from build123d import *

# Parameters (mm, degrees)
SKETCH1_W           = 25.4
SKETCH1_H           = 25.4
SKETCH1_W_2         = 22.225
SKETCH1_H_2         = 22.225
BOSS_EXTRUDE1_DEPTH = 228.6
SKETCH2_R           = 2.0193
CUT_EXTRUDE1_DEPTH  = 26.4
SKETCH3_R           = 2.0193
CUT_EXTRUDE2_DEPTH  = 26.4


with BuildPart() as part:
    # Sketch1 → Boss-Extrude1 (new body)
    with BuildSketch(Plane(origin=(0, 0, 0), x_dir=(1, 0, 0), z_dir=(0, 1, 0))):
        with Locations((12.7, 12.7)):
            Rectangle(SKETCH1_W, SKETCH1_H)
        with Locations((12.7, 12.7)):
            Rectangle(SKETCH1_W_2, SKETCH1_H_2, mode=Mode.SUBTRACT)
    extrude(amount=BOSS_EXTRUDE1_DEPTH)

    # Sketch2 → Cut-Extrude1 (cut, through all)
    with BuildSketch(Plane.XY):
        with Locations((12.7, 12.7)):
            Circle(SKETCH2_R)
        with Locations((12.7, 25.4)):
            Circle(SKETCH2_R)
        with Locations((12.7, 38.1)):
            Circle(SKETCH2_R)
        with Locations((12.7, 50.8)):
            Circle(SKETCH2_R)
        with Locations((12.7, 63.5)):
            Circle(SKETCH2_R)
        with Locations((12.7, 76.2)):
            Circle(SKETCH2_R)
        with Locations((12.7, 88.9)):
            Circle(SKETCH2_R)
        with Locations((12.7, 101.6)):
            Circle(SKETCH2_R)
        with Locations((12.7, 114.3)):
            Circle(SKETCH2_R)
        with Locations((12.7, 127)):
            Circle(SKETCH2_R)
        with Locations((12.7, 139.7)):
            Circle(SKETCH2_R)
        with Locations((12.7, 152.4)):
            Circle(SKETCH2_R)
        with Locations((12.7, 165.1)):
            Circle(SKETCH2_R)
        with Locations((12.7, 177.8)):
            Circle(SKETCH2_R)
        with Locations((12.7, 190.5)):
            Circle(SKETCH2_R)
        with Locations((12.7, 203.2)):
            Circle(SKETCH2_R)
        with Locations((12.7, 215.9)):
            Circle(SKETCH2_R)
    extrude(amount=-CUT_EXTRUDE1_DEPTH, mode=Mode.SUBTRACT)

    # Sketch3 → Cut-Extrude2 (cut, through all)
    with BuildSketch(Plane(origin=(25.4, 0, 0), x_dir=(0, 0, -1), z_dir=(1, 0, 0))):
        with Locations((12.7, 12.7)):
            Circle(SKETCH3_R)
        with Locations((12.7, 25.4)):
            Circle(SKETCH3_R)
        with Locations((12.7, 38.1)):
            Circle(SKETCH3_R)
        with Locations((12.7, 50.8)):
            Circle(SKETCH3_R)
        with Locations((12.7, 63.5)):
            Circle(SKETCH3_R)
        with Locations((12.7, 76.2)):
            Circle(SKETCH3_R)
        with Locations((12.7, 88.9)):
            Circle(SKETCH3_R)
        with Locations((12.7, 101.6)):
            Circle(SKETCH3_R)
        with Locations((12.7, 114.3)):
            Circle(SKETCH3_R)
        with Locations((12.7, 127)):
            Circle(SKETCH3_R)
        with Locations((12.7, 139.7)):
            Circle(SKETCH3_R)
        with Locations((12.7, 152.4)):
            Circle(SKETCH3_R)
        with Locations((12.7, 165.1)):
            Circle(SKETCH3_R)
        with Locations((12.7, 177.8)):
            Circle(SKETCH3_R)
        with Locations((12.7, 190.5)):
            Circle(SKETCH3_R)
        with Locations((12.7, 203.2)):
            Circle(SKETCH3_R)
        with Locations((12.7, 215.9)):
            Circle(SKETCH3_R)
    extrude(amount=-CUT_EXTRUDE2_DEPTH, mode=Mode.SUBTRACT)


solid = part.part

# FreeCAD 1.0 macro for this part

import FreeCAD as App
import Part
import Sketcher
from FreeCAD import Vector
Q = App.Units.Quantity

doc = App.newDocument("Part")
body = doc.addObject("PartDesign::Body", "Body")

# Sketch on XZ plane
sketch1 = body.newObject("Sketcher::SketchObject", "Sketch")
sketch1.AttachmentSupport = (doc.getObject("XZ_Plane"), [""])
sketch1.MapMode = "FlatFace"
sketch1.addGeometry(Part.LineSegment(Vector(0, -25, 0), Vector(0, 0, 0)), False)
sketch1.addGeometry(Part.LineSegment(Vector(0, 0, 0), Vector(25, 0, 0)), False)
sketch1.addGeometry(Part.LineSegment(Vector(25, 0, 0), Vector(25, -25, 0)), False)
sketch1.addGeometry(Part.LineSegment(Vector(25, -25, 0), Vector(0, -25, 0)), False)
sketch1.addGeometry(Part.LineSegment(Vector(24, -2, 0), Vector(2, -2, 0)), False)
sketch1.addGeometry(Part.LineSegment(Vector(2, -2, 0), Vector(2, -24, 0)), False)
sketch1.addGeometry(Part.LineSegment(Vector(2, -24, 0), Vector(24, -24, 0)), False)
sketch1.addGeometry(Part.LineSegment(Vector(24, -24, 0), Vector(24, -2, 0)), False)
sketch1.addConstraint(Sketcher.Constraint("Coincident", 0, 2, 1, 1))
sketch1.addConstraint(Sketcher.Constraint("Coincident", 1, 2, 2, 1))
sketch1.addConstraint(Sketcher.Constraint("Coincident", 2, 2, 3, 1))
sketch1.addConstraint(Sketcher.Constraint("Coincident", 3, 2, 0, 1))
sketch1.addConstraint(Sketcher.Constraint("Coincident", 4, 2, 5, 1))
sketch1.addConstraint(Sketcher.Constraint("Coincident", 5, 2, 6, 1))
sketch1.addConstraint(Sketcher.Constraint("Coincident", 6, 2, 7, 1))
sketch1.addConstraint(Sketcher.Constraint("Coincident", 7, 2, 4, 1))
sketch1.addConstraint(Sketcher.Constraint("Vertical", 0))
sketch1.addConstraint(Sketcher.Constraint("Horizontal", 1))
sketch1.addConstraint(Sketcher.Constraint("Vertical", 2))
sketch1.addConstraint(Sketcher.Constraint("Horizontal", 3))
sketch1.addConstraint(Sketcher.Constraint("Horizontal", 4))
sketch1.addConstraint(Sketcher.Constraint("Vertical", 5))
sketch1.addConstraint(Sketcher.Constraint("Horizontal", 6))
sketch1.addConstraint(Sketcher.Constraint("Vertical", 7))
sketch1.addConstraint(Sketcher.Constraint("Coincident", 0, 2, -1, 1))
sketch1.addConstraint(Sketcher.Constraint("Equal", 3, 0))
sketch1.addConstraint(Sketcher.Constraint("Equal", 6, 5))
sketch1.addConstraint(Sketcher.Constraint("DistanceX", 1, 1, 1, 2, Q("1 in")))
sketch1.addConstraint(Sketcher.Constraint("DistanceX", 4, 2, 4, 1, Q("0.875 in")))
sketch1.addConstraint(Sketcher.Constraint("DistanceX", -1, 1, 4, 2, Q("0.0625 in")))
sketch1.addConstraint(Sketcher.Constraint("DistanceY", 4, 2, -1, 1, Q("0.0625 in")))
pad1 = body.newObject("PartDesign::Pad", "Pad")
pad1.Profile = sketch1
pad1.Length = Q("9 in")
pad1.Reversed = True

# Sketch on XY plane
sketch2 = body.newObject("Sketcher::SketchObject", "Sketch001")
sketch2.AttachmentSupport = (doc.getObject("XY_Plane"), [""])
sketch2.MapMode = "FlatFace"
sketch2.addGeometry(Part.Circle(Vector(12.7, 12.7, 0), Vector(0, 0, 1), 2), False)
sketch2.addGeometry(Part.Circle(Vector(12.7, 25.4, 0), Vector(0, 0, 1), 2), False)
sketch2.addGeometry(Part.Circle(Vector(12.7, 38.1, 0), Vector(0, 0, 1), 2), False)
sketch2.addGeometry(Part.Circle(Vector(12.7, 50.8, 0), Vector(0, 0, 1), 2), False)
sketch2.addGeometry(Part.Circle(Vector(12.7, 63.5, 0), Vector(0, 0, 1), 2), False)
sketch2.addGeometry(Part.Circle(Vector(12.7, 76.2, 0), Vector(0, 0, 1), 2), False)
sketch2.addGeometry(Part.Circle(Vector(12.7, 88.9, 0), Vector(0, 0, 1), 2), False)
sketch2.addGeometry(Part.Circle(Vector(12.7, 101.6, 0), Vector(0, 0, 1), 2), False)
sketch2.addGeometry(Part.Circle(Vector(12.7, 114.3, 0), Vector(0, 0, 1), 2), False)
sketch2.addGeometry(Part.Circle(Vector(12.7, 127, 0), Vector(0, 0, 1), 2), False)
sketch2.addGeometry(Part.Circle(Vector(12.7, 139.7, 0), Vector(0, 0, 1), 2), False)
sketch2.addGeometry(Part.Circle(Vector(12.7, 152.4, 0), Vector(0, 0, 1), 2), False)
sketch2.addGeometry(Part.Circle(Vector(12.7, 165.1, 0), Vector(0, 0, 1), 2), False)
sketch2.addGeometry(Part.Circle(Vector(12.7, 177.8, 0), Vector(0, 0, 1), 2), False)
sketch2.addGeometry(Part.Circle(Vector(12.7, 190.5, 0), Vector(0, 0, 1), 2), False)
sketch2.addGeometry(Part.Circle(Vector(12.7, 203.2, 0), Vector(0, 0, 1), 2), False)
sketch2.addGeometry(Part.Circle(Vector(12.7, 215.9, 0), Vector(0, 0, 1), 2), False)
sketch2.addConstraint(Sketcher.Constraint("Equal", 0, 1))
sketch2.addConstraint(Sketcher.Constraint("Equal", 1, 2))
sketch2.addConstraint(Sketcher.Constraint("Equal", 2, 3))
sketch2.addConstraint(Sketcher.Constraint("Equal", 3, 4))
sketch2.addConstraint(Sketcher.Constraint("Equal", 4, 5))
sketch2.addConstraint(Sketcher.Constraint("Equal", 5, 6))
sketch2.addConstraint(Sketcher.Constraint("Equal", 6, 7))
sketch2.addConstraint(Sketcher.Constraint("Equal", 7, 8))
sketch2.addConstraint(Sketcher.Constraint("Equal", 8, 9))
sketch2.addConstraint(Sketcher.Constraint("Equal", 9, 10))
sketch2.addConstraint(Sketcher.Constraint("Equal", 10, 11))
sketch2.addConstraint(Sketcher.Constraint("Equal", 11, 12))
sketch2.addConstraint(Sketcher.Constraint("Equal", 12, 13))
sketch2.addConstraint(Sketcher.Constraint("Equal", 13, 14))
sketch2.addConstraint(Sketcher.Constraint("Equal", 14, 15))
sketch2.addConstraint(Sketcher.Constraint("Equal", 15, 16))
sketch2.addConstraint(Sketcher.Constraint("Vertical", 0, 3, 1, 3))
sketch2.addConstraint(Sketcher.Constraint("Vertical", 1, 3, 2, 3))
sketch2.addConstraint(Sketcher.Constraint("Vertical", 2, 3, 3, 3))
sketch2.addConstraint(Sketcher.Constraint("Vertical", 3, 3, 4, 3))
sketch2.addConstraint(Sketcher.Constraint("Vertical", 4, 3, 5, 3))
sketch2.addConstraint(Sketcher.Constraint("Vertical", 5, 3, 6, 3))
sketch2.addConstraint(Sketcher.Constraint("Vertical", 6, 3, 7, 3))
sketch2.addConstraint(Sketcher.Constraint("Vertical", 7, 3, 8, 3))
sketch2.addConstraint(Sketcher.Constraint("Vertical", 8, 3, 9, 3))
sketch2.addConstraint(Sketcher.Constraint("Vertical", 9, 3, 10, 3))
sketch2.addConstraint(Sketcher.Constraint("Vertical", 10, 3, 11, 3))
sketch2.addConstraint(Sketcher.Constraint("Vertical", 11, 3, 12, 3))
sketch2.addConstraint(Sketcher.Constraint("Vertical", 12, 3, 13, 3))
sketch2.addConstraint(Sketcher.Constraint("Vertical", 13, 3, 14, 3))
sketch2.addConstraint(Sketcher.Constraint("Vertical", 14, 3, 15, 3))
sketch2.addConstraint(Sketcher.Constraint("Vertical", 15, 3, 16, 3))
sketch2.addConstraint(Sketcher.Constraint("Diameter", 0, Q("0.159 in")))
sketch2.addConstraint(Sketcher.Constraint("DistanceY", -1, 1, 1, 3, Q("1 in")))
sketch2.addConstraint(Sketcher.Constraint("DistanceY", -1, 1, 3, 3, Q("2 in")))
sketch2.addConstraint(Sketcher.Constraint("DistanceY", -1, 1, 5, 3, Q("3 in")))
sketch2.addConstraint(Sketcher.Constraint("DistanceY", -1, 1, 7, 3, Q("4 in")))
sketch2.addConstraint(Sketcher.Constraint("DistanceY", -1, 1, 9, 3, Q("5 in")))
sketch2.addConstraint(Sketcher.Constraint("DistanceY", -1, 1, 11, 3, Q("6 in")))
sketch2.addConstraint(Sketcher.Constraint("DistanceY", -1, 1, 13, 3, Q("7 in")))
sketch2.addConstraint(Sketcher.Constraint("DistanceY", -1, 1, 15, 3, Q("8 in")))
sketch2.addConstraint(Sketcher.Constraint("DistanceY", 0, 3, 2, 3, Q("1 in")))
sketch2.addConstraint(Sketcher.Constraint("DistanceY", 2, 3, 4, 3, Q("1 in")))
sketch2.addConstraint(Sketcher.Constraint("DistanceY", 4, 3, 6, 3, Q("1 in")))
sketch2.addConstraint(Sketcher.Constraint("DistanceY", 6, 3, 8, 3, Q("1 in")))
sketch2.addConstraint(Sketcher.Constraint("DistanceY", 8, 3, 10, 3, Q("1 in")))
sketch2.addConstraint(Sketcher.Constraint("DistanceY", 10, 3, 12, 3, Q("1 in")))
sketch2.addConstraint(Sketcher.Constraint("DistanceY", 12, 3, 14, 3, Q("1 in")))
sketch2.addConstraint(Sketcher.Constraint("DistanceY", 14, 3, 16, 3, Q("1 in")))
sketch2.addConstraint(Sketcher.Constraint("DistanceX", -1, 1, 0, 3, Q("0.5 in")))
sketch2.addConstraint(Sketcher.Constraint("DistanceY", -1, 1, 0, 3, Q("0.5 in")))
pocket1 = body.newObject("PartDesign::Pocket", "Pocket")
pocket1.Profile = sketch2
pocket1.Type = "ThroughAll"

# Sketch on YZ plane
sketch3 = body.newObject("Sketcher::SketchObject", "Sketch002")
sketch3.AttachmentSupport = (doc.getObject("YZ_Plane"), [""])
sketch3.MapMode = "FlatFace"
sketch3.AttachmentOffset = App.Placement(Vector(0, 0, 1 * 25.4), App.Rotation())
sketch3.addGeometry(Part.Circle(Vector(12.7, -12.7, 0), Vector(0, 0, 1), 2), False)
sketch3.addGeometry(Part.Circle(Vector(25.4, -12.7, 0), Vector(0, 0, 1), 2), False)
sketch3.addGeometry(Part.Circle(Vector(38.1, -12.7, 0), Vector(0, 0, 1), 2), False)
sketch3.addGeometry(Part.Circle(Vector(50.8, -12.7, 0), Vector(0, 0, 1), 2), False)
sketch3.addGeometry(Part.Circle(Vector(63.5, -12.7, 0), Vector(0, 0, 1), 2), False)
sketch3.addGeometry(Part.Circle(Vector(76.2, -12.7, 0), Vector(0, 0, 1), 2), False)
sketch3.addGeometry(Part.Circle(Vector(88.9, -12.7, 0), Vector(0, 0, 1), 2), False)
sketch3.addGeometry(Part.Circle(Vector(101.6, -12.7, 0), Vector(0, 0, 1), 2), False)
sketch3.addGeometry(Part.Circle(Vector(114.3, -12.7, 0), Vector(0, 0, 1), 2), False)
sketch3.addGeometry(Part.Circle(Vector(127, -12.7, 0), Vector(0, 0, 1), 2), False)
sketch3.addGeometry(Part.Circle(Vector(139.7, -12.7, 0), Vector(0, 0, 1), 2), False)
sketch3.addGeometry(Part.Circle(Vector(152.4, -12.7, 0), Vector(0, 0, 1), 2), False)
sketch3.addGeometry(Part.Circle(Vector(165.1, -12.7, 0), Vector(0, 0, 1), 2), False)
sketch3.addGeometry(Part.Circle(Vector(177.8, -12.7, 0), Vector(0, 0, 1), 2), False)
sketch3.addGeometry(Part.Circle(Vector(190.5, -12.7, 0), Vector(0, 0, 1), 2), False)
sketch3.addGeometry(Part.Circle(Vector(203.2, -12.7, 0), Vector(0, 0, 1), 2), False)
sketch3.addGeometry(Part.Circle(Vector(215.9, -12.7, 0), Vector(0, 0, 1), 2), False)
sketch3.addConstraint(Sketcher.Constraint("Equal", 0, 1))
sketch3.addConstraint(Sketcher.Constraint("Equal", 1, 2))
sketch3.addConstraint(Sketcher.Constraint("Equal", 2, 3))
sketch3.addConstraint(Sketcher.Constraint("Equal", 3, 4))
sketch3.addConstraint(Sketcher.Constraint("Equal", 4, 5))
sketch3.addConstraint(Sketcher.Constraint("Equal", 5, 6))
sketch3.addConstraint(Sketcher.Constraint("Equal", 6, 7))
sketch3.addConstraint(Sketcher.Constraint("Equal", 7, 8))
sketch3.addConstraint(Sketcher.Constraint("Equal", 8, 9))
sketch3.addConstraint(Sketcher.Constraint("Equal", 9, 10))
sketch3.addConstraint(Sketcher.Constraint("Equal", 10, 11))
sketch3.addConstraint(Sketcher.Constraint("Equal", 11, 12))
sketch3.addConstraint(Sketcher.Constraint("Equal", 12, 13))
sketch3.addConstraint(Sketcher.Constraint("Equal", 13, 14))
sketch3.addConstraint(Sketcher.Constraint("Equal", 14, 15))
sketch3.addConstraint(Sketcher.Constraint("Equal", 15, 16))
sketch3.addConstraint(Sketcher.Constraint("Horizontal", 0, 3, 1, 3))
sketch3.addConstraint(Sketcher.Constraint("Horizontal", 1, 3, 2, 3))
sketch3.addConstraint(Sketcher.Constraint("Horizontal", 2, 3, 3, 3))
sketch3.addConstraint(Sketcher.Constraint("Horizontal", 3, 3, 4, 3))
sketch3.addConstraint(Sketcher.Constraint("Horizontal", 4, 3, 5, 3))
sketch3.addConstraint(Sketcher.Constraint("Horizontal", 5, 3, 6, 3))
sketch3.addConstraint(Sketcher.Constraint("Horizontal", 6, 3, 7, 3))
sketch3.addConstraint(Sketcher.Constraint("Horizontal", 7, 3, 8, 3))
sketch3.addConstraint(Sketcher.Constraint("Horizontal", 8, 3, 9, 3))
sketch3.addConstraint(Sketcher.Constraint("Horizontal", 9, 3, 10, 3))
sketch3.addConstraint(Sketcher.Constraint("Horizontal", 10, 3, 11, 3))
sketch3.addConstraint(Sketcher.Constraint("Horizontal", 11, 3, 12, 3))
sketch3.addConstraint(Sketcher.Constraint("Horizontal", 12, 3, 13, 3))
sketch3.addConstraint(Sketcher.Constraint("Horizontal", 13, 3, 14, 3))
sketch3.addConstraint(Sketcher.Constraint("Horizontal", 14, 3, 15, 3))
sketch3.addConstraint(Sketcher.Constraint("Horizontal", 15, 3, 16, 3))
sketch3.addConstraint(Sketcher.Constraint("Diameter", 0, Q("0.159 in")))
sketch3.addConstraint(Sketcher.Constraint("DistanceX", -1, 1, 1, 3, Q("1 in")))
sketch3.addConstraint(Sketcher.Constraint("DistanceX", -1, 1, 3, 3, Q("2 in")))
sketch3.addConstraint(Sketcher.Constraint("DistanceX", -1, 1, 5, 3, Q("3 in")))
sketch3.addConstraint(Sketcher.Constraint("DistanceX", -1, 1, 7, 3, Q("4 in")))
sketch3.addConstraint(Sketcher.Constraint("DistanceX", -1, 1, 9, 3, Q("5 in")))
sketch3.addConstraint(Sketcher.Constraint("DistanceX", -1, 1, 11, 3, Q("6 in")))
sketch3.addConstraint(Sketcher.Constraint("DistanceX", -1, 1, 13, 3, Q("7 in")))
sketch3.addConstraint(Sketcher.Constraint("DistanceX", -1, 1, 15, 3, Q("8 in")))
sketch3.addConstraint(Sketcher.Constraint("DistanceX", 0, 3, 2, 3, Q("1 in")))
sketch3.addConstraint(Sketcher.Constraint("DistanceX", 2, 3, 4, 3, Q("1 in")))
sketch3.addConstraint(Sketcher.Constraint("DistanceX", 4, 3, 6, 3, Q("1 in")))
sketch3.addConstraint(Sketcher.Constraint("DistanceX", 6, 3, 8, 3, Q("1 in")))
sketch3.addConstraint(Sketcher.Constraint("DistanceX", 8, 3, 10, 3, Q("1 in")))
sketch3.addConstraint(Sketcher.Constraint("DistanceX", 10, 3, 12, 3, Q("1 in")))
sketch3.addConstraint(Sketcher.Constraint("DistanceX", 12, 3, 14, 3, Q("1 in")))
sketch3.addConstraint(Sketcher.Constraint("DistanceX", 14, 3, 16, 3, Q("1 in")))
sketch3.addConstraint(Sketcher.Constraint("DistanceX", -1, 1, 0, 3, Q("0.5 in")))
sketch3.addConstraint(Sketcher.Constraint("DistanceY", 0, 3, -1, 1, Q("0.5 in")))
pocket2 = body.newObject("PartDesign::Pocket", "Pocket001")
pocket2.Profile = sketch3
pocket2.Type = "ThroughAll"

doc.recompute()
